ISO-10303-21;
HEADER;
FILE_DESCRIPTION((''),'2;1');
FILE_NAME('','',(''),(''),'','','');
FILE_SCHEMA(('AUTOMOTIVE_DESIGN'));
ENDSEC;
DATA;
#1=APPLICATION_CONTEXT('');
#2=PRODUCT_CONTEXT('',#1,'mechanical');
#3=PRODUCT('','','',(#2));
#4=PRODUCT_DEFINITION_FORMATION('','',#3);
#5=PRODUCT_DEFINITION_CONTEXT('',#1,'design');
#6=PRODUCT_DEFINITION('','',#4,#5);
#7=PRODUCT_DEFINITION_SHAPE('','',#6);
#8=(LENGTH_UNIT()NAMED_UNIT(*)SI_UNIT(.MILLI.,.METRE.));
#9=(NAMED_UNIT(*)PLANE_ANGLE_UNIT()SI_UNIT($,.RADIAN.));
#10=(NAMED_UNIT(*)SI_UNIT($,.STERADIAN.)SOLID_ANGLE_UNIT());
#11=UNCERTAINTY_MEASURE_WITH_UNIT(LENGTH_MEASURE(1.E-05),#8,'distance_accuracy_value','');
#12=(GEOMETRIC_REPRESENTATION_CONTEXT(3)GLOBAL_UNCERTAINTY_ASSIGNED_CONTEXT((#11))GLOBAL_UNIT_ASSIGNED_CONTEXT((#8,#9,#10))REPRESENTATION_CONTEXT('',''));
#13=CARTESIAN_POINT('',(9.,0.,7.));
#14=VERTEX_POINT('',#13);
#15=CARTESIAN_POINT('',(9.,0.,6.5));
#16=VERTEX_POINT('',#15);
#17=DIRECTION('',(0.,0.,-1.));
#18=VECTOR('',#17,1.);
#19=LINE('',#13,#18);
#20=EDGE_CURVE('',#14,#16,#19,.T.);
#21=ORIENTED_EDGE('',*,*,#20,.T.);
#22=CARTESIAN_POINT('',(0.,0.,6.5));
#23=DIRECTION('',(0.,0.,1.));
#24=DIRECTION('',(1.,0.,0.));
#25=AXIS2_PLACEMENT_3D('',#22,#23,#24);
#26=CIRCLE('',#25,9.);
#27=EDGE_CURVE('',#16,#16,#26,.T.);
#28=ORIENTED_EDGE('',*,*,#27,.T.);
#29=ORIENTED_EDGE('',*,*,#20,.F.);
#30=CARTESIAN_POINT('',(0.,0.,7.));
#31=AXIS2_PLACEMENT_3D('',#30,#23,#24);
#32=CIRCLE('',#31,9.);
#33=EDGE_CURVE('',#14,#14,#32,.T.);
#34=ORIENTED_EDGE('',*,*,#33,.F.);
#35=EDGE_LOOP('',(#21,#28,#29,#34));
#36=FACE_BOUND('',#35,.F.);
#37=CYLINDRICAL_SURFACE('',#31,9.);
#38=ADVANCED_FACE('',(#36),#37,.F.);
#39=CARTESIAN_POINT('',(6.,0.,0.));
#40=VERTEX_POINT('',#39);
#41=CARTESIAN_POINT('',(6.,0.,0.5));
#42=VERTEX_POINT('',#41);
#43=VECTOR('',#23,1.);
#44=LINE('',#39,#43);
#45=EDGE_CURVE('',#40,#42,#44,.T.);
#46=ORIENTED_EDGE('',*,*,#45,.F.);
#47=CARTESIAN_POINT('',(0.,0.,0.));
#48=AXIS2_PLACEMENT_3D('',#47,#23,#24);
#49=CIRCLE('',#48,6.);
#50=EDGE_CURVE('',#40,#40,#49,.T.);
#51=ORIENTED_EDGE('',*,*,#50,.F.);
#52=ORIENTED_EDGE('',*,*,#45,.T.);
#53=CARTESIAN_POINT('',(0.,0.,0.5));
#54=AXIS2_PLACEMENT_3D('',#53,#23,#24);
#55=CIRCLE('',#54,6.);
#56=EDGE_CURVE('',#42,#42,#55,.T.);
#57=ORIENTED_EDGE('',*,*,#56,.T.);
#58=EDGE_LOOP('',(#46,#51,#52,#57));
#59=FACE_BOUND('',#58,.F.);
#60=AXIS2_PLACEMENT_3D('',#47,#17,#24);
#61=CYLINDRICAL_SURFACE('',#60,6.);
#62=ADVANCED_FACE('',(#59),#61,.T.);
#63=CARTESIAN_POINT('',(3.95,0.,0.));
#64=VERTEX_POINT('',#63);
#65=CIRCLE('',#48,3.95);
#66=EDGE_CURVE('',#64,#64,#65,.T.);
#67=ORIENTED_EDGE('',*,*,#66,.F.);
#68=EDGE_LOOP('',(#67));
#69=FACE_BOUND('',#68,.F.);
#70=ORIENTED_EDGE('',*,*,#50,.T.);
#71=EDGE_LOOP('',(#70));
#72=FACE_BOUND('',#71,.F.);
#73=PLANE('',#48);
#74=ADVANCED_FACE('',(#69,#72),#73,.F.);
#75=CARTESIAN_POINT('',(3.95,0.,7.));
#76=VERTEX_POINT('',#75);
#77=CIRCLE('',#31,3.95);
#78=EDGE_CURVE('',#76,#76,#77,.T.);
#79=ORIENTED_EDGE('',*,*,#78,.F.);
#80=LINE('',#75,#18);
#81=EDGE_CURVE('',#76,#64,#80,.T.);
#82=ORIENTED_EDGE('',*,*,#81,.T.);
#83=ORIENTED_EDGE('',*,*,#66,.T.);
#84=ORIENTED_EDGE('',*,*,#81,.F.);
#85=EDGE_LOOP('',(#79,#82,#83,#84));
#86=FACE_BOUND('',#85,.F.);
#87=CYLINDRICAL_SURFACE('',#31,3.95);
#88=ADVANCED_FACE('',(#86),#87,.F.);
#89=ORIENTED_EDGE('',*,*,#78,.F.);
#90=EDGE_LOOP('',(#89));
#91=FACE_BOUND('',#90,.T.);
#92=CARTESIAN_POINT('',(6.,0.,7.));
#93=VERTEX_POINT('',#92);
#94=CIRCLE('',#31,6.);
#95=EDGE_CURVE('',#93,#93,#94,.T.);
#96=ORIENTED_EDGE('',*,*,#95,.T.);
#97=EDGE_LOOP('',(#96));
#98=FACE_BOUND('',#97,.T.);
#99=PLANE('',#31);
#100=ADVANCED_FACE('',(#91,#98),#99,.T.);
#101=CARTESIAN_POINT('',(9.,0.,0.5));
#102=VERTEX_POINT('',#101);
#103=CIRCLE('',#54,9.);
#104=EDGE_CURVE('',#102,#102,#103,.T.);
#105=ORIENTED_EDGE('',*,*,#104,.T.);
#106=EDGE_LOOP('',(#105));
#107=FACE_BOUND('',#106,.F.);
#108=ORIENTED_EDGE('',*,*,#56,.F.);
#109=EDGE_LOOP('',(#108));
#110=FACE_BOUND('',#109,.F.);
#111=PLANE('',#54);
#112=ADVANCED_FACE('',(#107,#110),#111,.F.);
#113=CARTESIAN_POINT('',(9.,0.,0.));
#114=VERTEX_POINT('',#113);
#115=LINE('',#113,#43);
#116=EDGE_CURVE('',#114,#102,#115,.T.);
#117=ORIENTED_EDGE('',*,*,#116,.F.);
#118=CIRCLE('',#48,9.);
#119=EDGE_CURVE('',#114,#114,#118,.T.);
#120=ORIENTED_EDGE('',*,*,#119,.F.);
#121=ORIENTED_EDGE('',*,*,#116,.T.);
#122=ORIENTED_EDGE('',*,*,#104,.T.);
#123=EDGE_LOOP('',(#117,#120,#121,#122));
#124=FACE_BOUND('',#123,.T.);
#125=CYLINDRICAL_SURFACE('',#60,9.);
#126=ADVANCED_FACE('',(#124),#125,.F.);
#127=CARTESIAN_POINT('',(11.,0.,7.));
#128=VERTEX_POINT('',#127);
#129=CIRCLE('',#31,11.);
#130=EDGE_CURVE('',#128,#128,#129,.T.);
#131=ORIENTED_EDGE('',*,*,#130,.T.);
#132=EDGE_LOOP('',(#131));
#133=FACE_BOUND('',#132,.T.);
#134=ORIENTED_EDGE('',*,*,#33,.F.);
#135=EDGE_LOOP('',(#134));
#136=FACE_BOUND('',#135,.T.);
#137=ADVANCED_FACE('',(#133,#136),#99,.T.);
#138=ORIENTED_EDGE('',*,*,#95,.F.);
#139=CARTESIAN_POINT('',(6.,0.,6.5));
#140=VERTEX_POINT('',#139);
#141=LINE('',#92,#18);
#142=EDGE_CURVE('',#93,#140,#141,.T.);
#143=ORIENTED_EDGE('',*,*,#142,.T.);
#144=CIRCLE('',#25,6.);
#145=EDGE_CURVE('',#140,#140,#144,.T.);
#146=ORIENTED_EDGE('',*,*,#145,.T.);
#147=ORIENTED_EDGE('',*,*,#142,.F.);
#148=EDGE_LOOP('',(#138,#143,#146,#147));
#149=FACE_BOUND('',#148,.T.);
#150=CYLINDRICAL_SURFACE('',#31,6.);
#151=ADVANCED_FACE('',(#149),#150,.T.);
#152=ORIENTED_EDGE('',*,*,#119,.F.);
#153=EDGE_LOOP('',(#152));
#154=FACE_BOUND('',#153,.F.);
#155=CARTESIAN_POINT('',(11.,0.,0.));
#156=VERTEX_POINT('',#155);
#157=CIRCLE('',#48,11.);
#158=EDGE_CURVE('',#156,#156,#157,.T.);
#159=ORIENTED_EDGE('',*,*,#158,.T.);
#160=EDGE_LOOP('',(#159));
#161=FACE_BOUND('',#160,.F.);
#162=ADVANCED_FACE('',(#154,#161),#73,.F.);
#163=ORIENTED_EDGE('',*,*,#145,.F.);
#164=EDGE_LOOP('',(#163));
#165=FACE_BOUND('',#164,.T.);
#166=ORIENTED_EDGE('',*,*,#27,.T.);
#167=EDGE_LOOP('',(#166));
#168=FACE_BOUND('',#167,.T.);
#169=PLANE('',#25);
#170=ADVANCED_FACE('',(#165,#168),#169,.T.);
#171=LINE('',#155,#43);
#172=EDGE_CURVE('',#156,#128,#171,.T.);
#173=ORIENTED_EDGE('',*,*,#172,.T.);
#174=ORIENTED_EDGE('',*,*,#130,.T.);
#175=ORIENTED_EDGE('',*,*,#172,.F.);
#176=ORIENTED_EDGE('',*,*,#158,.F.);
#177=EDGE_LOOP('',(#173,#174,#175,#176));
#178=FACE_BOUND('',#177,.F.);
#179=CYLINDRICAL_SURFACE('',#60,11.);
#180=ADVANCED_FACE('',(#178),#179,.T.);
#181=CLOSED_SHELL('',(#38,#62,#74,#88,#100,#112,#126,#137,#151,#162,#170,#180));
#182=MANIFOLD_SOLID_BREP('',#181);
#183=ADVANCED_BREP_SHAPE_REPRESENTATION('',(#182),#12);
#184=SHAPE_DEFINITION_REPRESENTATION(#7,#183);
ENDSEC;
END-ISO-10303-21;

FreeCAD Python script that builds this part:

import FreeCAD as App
import Part
import Sketcher

V = App.Vector

doc = App.newDocument("Part")
body = doc.addObject("PartDesign::Body", "Body")

sketch1 = body.newObject("Sketcher::SketchObject", "Sketch")
sketch1.AttachmentSupport = (doc.getObject("XY_Plane"), [""])
sketch1.MapMode = "FlatFace"
sketch1.addGeometry(Part.Circle(V(0, 0, 0), V(0, 0, 1), 11), False)
sketch1.addConstraint(Sketcher.Constraint("Coincident", 0, 3, -1, 1))
sketch1.addConstraint(Sketcher.Constraint("Diameter", 0, 22.0))
pad1 = body.newObject("PartDesign::Pad", "Pad")
pad1.Profile = sketch1
pad1.Length = 7

sketch2 = body.newObject("Sketcher::SketchObject", "Sketch001")
sketch2.AttachmentSupport = (doc.getObject("XY_Plane"), [""])
sketch2.MapMode = "FlatFace"
sketch2.AttachmentOffset = App.Placement(V(0, 0, 7), App.Rotation())
sketch2.addGeometry(Part.Circle(V(0, 0, 0), V(0, 0, 1), 9), False)
sketch2.addGeometry(Part.Circle(V(0, 0, 0), V(0, 0, 1), 6), False)
sketch2.addConstraint(Sketcher.Constraint("Coincident", 0, 3, -1, 1))
sketch2.addConstraint(Sketcher.Constraint("Coincident", 1, 3, -1, 1))
sketch2.addConstraint(Sketcher.Constraint("Diameter", 0, 18.0))
sketch2.addConstraint(Sketcher.Constraint("Diameter", 1, 12.0))
pocket1 = body.newObject("PartDesign::Pocket", "Pocket")
pocket1.Profile = sketch2
pocket1.Length = 0.5

sketch3 = body.newObject("Sketcher::SketchObject", "Sketch002")
sketch3.AttachmentSupport = (doc.getObject("XY_Plane"), [""])
sketch3.MapMode = "FlatFace"
sketch3.AttachmentOffset = App.Placement(V(0, 0, 7), App.Rotation())
sketch3.addGeometry(Part.Circle(V(0, 0, 0), V(0, 0, 1), 4), False)
sketch3.addConstraint(Sketcher.Constraint("Coincident", 0, 3, -1, 1))
sketch3.addConstraint(Sketcher.Constraint("Diameter", 0, 7.9))
pocket2 = body.newObject("PartDesign::Pocket", "Pocket001")
pocket2.Profile = sketch3
pocket2.Type = "ThroughAll"

sketch4 = body.newObject("Sketcher::SketchObject", "Sketch003")
sketch4.AttachmentSupport = (doc.getObject("XY_Plane"), [""])
sketch4.MapMode = "FlatFace"
sketch4.addGeometry(Part.Circle(V(0, 0, 0), V(0, 0, 1), 9), False)
sketch4.addGeometry(Part.Circle(V(0, 0, 0), V(0, 0, 1), 6), False)
sketch4.addConstraint(Sketcher.Constraint("Coincident", 0, 3, -1, 1))
sketch4.addConstraint(Sketcher.Constraint("Coincident", 1, 3, -1, 1))
sketch4.addConstraint(Sketcher.Constraint("Diameter", 0, 18.0))
sketch4.addConstraint(Sketcher.Constraint("Diameter", 1, 12.0))
pocket3 = body.newObject("PartDesign::Pocket", "Pocket002")
pocket3.Profile = sketch4
pocket3.Length = 0.5
pocket3.Reversed = True

doc.recompute()
